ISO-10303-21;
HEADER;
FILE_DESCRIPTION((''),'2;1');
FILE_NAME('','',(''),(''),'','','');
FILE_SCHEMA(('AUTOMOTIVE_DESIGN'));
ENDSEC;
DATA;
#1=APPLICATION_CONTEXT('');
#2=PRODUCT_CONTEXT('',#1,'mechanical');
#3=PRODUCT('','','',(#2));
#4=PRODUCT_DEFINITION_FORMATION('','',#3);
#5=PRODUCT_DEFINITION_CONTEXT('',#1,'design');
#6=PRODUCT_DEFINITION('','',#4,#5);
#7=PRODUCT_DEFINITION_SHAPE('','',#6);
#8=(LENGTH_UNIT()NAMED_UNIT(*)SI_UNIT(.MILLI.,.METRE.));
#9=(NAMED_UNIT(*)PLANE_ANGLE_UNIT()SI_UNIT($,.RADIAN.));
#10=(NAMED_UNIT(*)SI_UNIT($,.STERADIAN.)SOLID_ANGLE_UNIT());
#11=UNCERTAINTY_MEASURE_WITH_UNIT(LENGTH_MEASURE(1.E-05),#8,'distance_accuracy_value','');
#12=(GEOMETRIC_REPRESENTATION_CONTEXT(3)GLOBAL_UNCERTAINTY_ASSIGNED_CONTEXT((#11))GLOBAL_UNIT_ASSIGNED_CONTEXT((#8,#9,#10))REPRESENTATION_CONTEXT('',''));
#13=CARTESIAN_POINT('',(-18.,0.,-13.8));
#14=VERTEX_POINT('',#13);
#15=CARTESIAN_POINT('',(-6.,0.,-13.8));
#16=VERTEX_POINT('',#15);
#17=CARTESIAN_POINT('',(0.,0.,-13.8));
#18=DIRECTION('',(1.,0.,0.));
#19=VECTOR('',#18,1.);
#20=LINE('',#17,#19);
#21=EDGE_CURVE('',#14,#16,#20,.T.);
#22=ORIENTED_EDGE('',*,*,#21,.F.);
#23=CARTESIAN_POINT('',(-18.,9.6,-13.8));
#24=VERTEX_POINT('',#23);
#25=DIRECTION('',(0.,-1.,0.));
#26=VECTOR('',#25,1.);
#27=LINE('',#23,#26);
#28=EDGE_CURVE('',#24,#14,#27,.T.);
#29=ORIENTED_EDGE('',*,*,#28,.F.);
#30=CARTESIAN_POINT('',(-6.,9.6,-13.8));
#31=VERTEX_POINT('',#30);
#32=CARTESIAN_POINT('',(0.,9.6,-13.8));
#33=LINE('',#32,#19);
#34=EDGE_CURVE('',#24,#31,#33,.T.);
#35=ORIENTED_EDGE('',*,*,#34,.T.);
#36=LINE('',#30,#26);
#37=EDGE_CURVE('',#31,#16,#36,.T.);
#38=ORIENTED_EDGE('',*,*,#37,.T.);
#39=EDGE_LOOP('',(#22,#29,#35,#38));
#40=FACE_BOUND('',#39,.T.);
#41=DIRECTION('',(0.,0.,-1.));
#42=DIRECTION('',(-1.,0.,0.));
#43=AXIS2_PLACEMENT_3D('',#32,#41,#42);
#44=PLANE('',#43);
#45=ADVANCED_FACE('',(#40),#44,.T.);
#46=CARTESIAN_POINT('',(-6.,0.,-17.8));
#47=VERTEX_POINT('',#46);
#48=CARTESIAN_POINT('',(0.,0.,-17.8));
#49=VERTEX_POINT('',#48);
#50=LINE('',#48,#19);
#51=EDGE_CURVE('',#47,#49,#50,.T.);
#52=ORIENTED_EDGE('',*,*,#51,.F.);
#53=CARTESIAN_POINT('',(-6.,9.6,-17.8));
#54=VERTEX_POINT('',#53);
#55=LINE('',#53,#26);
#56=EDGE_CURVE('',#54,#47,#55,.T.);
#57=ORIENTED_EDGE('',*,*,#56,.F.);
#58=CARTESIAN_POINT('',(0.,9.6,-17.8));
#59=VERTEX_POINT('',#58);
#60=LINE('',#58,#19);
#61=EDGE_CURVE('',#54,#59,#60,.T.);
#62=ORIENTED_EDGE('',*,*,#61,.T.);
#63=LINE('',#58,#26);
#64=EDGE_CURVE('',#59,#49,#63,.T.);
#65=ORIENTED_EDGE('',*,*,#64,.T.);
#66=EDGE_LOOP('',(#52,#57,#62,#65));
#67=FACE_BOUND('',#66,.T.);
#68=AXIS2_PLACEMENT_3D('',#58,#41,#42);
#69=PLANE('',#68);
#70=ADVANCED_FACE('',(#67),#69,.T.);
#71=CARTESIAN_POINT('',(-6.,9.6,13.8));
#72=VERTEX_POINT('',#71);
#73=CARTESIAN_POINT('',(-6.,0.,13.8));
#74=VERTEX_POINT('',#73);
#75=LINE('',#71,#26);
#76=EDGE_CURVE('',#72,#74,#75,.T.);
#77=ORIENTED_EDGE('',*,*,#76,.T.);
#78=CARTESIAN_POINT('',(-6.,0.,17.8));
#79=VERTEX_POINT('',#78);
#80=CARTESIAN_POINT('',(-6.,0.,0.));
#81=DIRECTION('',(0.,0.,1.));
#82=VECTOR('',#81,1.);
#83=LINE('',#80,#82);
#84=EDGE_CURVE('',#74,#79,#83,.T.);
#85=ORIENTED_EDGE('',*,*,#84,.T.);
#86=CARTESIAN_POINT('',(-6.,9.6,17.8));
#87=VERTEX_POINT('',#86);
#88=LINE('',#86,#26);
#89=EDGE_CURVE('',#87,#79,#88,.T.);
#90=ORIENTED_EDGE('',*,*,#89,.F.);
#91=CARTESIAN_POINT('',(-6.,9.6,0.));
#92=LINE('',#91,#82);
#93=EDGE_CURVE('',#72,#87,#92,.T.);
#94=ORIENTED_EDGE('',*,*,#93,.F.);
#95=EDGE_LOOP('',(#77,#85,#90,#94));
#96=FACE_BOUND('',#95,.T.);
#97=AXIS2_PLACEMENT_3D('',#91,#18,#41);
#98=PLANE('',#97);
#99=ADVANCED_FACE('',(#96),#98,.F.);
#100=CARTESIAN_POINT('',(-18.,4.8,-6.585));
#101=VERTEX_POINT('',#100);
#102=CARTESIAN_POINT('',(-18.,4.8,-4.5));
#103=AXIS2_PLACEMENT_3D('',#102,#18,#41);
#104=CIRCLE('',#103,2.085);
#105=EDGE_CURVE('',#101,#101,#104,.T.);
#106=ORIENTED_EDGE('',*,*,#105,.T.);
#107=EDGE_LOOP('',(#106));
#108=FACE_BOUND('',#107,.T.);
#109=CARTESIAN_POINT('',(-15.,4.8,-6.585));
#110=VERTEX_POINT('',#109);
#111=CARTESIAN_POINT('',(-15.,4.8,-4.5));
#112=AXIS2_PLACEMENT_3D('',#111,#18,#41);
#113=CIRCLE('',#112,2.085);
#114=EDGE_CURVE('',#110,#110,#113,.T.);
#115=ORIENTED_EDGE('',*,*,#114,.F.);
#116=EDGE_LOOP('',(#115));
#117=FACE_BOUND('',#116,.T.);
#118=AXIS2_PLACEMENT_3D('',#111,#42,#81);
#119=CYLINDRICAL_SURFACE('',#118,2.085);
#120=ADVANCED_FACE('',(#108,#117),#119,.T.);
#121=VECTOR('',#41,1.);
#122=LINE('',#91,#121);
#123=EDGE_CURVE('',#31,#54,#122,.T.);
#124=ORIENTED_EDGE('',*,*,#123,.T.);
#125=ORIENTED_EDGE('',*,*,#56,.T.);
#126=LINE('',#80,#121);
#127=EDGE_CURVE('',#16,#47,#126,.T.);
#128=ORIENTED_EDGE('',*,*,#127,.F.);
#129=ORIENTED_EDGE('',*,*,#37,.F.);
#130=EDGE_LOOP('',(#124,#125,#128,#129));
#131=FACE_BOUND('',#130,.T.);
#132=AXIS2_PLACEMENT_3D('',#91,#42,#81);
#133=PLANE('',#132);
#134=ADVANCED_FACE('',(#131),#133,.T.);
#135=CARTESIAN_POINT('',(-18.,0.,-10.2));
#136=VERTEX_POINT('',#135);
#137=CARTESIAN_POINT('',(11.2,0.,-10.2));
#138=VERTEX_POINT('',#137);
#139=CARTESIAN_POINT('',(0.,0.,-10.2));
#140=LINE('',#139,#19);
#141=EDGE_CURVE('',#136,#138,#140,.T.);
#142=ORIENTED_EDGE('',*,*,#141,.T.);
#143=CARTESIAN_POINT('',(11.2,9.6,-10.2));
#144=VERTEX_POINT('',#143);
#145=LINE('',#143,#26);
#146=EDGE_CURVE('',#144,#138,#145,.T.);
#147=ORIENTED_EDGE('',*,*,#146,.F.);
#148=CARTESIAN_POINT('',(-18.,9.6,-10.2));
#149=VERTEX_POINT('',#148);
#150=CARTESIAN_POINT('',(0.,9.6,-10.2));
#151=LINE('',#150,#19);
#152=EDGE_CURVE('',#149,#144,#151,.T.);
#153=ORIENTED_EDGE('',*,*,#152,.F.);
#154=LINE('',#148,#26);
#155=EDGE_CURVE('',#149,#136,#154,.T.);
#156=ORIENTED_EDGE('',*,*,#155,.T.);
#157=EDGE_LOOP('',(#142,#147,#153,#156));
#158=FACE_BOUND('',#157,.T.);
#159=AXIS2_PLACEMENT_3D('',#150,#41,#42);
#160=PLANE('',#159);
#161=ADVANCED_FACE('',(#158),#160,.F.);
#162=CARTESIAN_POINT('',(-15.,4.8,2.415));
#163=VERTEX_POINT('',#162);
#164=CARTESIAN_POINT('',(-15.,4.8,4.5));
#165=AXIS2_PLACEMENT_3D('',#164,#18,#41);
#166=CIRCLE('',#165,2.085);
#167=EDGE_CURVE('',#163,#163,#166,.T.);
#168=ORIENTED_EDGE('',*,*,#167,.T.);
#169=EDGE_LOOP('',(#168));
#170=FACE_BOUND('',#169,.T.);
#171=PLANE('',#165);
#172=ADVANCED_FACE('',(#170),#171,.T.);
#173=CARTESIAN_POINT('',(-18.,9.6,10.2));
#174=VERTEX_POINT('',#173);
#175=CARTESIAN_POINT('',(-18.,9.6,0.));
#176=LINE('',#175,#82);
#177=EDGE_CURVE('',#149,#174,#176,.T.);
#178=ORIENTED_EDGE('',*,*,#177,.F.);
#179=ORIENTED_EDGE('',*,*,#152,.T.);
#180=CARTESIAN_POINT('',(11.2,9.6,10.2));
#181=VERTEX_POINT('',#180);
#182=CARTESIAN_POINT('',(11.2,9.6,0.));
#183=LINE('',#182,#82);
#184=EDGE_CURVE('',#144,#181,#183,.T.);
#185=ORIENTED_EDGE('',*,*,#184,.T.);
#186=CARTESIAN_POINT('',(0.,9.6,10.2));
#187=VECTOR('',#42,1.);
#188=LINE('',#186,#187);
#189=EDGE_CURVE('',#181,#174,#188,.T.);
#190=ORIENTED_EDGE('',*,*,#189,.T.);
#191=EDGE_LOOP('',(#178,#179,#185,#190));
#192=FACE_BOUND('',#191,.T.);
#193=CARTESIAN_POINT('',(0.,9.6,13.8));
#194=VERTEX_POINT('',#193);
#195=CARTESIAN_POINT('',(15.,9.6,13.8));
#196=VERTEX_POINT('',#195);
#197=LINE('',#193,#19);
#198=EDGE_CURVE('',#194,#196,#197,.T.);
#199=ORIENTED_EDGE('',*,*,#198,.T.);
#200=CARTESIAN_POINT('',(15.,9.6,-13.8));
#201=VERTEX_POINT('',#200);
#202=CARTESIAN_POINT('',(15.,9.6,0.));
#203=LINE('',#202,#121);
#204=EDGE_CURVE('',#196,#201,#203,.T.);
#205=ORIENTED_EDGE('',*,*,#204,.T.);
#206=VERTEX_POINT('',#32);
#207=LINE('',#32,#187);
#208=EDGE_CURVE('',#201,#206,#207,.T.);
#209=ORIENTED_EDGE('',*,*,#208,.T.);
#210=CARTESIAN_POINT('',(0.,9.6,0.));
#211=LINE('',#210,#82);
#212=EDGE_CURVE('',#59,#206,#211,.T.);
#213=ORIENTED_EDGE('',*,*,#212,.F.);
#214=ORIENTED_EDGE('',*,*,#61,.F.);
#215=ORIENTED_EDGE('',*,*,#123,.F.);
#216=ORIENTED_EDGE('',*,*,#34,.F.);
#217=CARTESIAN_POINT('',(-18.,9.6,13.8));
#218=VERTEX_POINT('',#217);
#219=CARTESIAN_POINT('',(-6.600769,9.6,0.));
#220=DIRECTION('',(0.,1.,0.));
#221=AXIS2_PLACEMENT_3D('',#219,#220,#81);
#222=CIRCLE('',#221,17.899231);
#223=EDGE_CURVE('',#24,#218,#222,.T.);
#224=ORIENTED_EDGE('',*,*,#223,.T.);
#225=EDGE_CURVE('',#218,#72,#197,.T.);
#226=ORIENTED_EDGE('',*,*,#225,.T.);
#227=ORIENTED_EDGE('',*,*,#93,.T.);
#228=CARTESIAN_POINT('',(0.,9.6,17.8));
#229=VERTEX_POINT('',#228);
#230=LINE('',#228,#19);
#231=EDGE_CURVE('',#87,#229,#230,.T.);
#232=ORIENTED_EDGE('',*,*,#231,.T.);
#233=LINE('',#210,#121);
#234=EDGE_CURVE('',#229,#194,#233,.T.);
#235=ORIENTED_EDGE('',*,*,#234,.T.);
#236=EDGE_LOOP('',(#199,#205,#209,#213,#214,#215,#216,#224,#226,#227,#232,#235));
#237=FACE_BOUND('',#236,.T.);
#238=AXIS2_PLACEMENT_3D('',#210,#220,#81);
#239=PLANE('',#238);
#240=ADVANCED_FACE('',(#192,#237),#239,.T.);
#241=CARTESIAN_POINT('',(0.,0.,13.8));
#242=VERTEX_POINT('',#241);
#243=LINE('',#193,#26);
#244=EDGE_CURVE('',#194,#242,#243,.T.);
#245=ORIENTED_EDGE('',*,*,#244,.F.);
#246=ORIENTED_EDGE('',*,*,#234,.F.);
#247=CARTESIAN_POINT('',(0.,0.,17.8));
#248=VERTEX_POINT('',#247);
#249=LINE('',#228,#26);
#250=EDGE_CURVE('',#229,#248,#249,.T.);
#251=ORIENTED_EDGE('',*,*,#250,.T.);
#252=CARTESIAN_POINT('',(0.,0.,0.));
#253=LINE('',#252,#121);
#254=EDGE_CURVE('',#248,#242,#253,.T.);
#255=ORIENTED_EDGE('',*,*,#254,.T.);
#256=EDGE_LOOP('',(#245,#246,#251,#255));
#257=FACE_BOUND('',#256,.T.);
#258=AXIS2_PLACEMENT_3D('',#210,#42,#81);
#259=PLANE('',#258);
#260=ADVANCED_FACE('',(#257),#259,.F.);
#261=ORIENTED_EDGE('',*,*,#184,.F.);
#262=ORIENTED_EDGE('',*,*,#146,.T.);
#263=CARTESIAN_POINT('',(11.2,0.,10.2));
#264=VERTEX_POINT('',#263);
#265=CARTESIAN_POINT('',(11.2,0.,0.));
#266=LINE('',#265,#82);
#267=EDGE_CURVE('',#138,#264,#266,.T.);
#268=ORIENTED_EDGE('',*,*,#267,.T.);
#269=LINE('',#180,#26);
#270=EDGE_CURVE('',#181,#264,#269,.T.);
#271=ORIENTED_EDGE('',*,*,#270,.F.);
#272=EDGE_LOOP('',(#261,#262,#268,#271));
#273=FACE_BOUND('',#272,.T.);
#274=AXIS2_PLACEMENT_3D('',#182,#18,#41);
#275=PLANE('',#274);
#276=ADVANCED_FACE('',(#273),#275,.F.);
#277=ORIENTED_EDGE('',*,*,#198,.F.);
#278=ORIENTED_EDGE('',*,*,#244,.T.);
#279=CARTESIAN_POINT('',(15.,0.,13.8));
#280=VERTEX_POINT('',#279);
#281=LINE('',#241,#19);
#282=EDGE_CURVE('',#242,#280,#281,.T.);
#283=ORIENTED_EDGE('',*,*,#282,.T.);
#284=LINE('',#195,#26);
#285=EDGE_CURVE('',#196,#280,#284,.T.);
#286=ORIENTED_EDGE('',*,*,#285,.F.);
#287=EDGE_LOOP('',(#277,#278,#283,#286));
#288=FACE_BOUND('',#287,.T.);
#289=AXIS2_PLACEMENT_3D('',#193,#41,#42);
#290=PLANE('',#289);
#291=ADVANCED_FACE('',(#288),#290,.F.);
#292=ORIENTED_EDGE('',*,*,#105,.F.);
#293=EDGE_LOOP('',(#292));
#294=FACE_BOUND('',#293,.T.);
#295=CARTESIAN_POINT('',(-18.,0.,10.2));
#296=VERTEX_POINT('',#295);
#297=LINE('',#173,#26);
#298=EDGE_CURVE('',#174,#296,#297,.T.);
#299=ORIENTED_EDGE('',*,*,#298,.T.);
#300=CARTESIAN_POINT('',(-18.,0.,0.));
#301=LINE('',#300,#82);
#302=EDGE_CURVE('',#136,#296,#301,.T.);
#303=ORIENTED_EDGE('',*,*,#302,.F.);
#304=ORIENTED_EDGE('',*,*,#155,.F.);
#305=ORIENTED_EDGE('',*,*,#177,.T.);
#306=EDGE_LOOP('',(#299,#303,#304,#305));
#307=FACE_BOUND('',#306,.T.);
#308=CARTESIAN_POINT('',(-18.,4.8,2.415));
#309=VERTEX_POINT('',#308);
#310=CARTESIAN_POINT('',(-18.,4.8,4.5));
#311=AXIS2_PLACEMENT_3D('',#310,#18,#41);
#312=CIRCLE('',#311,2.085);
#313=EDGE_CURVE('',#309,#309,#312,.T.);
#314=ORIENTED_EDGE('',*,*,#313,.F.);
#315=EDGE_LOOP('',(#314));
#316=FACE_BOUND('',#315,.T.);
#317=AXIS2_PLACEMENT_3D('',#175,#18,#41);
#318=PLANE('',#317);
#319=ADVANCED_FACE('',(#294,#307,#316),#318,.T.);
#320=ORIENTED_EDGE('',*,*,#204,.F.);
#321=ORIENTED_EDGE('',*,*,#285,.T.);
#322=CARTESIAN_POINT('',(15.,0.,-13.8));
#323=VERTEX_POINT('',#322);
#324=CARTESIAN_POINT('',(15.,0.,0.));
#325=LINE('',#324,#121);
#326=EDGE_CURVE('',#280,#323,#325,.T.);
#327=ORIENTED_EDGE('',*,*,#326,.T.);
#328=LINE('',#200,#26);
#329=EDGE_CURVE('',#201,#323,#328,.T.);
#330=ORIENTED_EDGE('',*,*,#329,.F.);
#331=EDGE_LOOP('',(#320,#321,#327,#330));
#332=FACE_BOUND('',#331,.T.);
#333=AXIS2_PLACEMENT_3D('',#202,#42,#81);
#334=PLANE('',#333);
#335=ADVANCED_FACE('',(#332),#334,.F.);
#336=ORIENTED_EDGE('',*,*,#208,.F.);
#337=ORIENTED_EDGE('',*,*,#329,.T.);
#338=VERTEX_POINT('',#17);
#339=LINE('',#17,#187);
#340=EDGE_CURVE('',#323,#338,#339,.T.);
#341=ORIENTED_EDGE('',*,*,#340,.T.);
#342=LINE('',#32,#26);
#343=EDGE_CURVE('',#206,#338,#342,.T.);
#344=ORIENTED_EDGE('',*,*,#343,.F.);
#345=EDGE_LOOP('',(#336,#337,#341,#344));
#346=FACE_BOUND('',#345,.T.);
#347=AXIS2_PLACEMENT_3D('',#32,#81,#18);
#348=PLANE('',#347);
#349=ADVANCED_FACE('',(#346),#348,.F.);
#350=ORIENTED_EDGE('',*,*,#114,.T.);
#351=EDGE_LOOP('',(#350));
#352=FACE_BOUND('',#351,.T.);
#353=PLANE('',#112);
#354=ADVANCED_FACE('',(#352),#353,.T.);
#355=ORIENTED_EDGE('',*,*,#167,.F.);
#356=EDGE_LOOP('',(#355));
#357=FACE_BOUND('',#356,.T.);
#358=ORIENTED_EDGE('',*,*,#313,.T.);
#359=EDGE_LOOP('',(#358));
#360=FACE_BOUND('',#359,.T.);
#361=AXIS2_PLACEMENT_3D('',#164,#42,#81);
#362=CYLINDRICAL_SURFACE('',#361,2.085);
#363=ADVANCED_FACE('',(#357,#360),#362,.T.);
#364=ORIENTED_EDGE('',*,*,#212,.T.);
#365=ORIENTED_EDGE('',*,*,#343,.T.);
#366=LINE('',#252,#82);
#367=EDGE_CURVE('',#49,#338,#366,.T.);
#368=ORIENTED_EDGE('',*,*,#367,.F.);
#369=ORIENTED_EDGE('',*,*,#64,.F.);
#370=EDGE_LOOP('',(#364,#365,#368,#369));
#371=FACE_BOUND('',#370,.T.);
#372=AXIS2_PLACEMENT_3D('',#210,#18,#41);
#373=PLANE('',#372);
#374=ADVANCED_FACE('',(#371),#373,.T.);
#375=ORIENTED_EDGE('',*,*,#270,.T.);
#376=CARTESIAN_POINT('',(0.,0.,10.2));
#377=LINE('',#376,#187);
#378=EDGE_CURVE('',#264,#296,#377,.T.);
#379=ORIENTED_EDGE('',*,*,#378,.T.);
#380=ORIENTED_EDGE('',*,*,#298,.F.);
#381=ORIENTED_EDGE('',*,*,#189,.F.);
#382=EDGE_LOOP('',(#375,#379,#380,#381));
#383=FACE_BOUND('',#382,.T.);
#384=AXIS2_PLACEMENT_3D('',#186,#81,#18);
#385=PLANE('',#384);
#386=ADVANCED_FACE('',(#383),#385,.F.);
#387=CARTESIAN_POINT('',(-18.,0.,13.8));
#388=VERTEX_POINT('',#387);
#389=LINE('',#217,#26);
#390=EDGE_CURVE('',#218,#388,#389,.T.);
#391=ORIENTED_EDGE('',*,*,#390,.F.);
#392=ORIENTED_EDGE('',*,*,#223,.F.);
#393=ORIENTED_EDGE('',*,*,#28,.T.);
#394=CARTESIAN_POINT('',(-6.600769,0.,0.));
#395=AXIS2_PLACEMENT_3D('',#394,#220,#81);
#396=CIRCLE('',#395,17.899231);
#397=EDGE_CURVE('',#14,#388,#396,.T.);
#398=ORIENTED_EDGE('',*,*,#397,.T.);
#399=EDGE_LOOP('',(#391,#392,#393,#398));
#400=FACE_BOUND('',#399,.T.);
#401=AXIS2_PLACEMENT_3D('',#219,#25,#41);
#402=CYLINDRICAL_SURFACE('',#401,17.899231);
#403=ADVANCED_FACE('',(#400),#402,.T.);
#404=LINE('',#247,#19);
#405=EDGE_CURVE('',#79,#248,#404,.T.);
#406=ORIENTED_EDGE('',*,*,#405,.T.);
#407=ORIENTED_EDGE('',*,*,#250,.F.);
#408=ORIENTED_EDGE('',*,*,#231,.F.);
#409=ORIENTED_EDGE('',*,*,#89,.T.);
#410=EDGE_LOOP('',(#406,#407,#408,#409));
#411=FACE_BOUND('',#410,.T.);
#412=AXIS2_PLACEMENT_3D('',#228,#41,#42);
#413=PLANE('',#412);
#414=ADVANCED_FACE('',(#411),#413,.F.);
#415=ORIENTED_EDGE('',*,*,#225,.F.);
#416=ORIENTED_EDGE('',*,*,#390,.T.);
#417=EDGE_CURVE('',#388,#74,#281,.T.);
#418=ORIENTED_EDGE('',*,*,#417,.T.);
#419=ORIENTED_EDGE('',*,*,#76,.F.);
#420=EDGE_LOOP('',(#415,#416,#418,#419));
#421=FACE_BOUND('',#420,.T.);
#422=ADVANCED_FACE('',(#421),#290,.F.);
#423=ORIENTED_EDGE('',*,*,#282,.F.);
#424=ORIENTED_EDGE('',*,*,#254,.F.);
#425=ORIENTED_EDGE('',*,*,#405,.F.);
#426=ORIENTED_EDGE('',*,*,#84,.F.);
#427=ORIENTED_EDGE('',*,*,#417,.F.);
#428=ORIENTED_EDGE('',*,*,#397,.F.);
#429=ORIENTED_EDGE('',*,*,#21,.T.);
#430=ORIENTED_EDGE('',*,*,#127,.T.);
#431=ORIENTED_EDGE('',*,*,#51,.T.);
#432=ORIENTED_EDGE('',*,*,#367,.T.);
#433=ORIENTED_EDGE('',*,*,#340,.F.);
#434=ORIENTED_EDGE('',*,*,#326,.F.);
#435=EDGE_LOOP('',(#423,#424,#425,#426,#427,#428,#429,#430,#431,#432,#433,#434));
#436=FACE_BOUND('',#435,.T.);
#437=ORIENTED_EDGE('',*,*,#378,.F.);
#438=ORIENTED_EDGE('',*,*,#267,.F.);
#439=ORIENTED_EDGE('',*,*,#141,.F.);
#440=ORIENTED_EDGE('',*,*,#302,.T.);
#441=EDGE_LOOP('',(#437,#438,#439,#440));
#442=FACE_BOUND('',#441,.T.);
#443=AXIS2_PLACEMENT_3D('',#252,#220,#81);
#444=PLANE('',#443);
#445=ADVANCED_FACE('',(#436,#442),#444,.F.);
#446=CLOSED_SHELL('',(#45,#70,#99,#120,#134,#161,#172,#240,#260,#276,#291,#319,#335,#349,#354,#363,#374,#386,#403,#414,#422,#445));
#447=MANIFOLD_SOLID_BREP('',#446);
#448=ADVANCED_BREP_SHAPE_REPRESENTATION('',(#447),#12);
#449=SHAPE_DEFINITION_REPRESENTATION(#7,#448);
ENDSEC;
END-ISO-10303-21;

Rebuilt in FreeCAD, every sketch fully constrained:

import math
import FreeCAD as App
import Part
import Sketcher
from FreeCAD import Vector


def add_polygon(sketch, points):
    """Adds a closed chain of lines whose ends are joined by coincident constraints."""
    first, n = sketch.GeometryCount, len(points)
    for a, b in zip(points, points[1:] + points[:1]):
        sketch.addGeometry(Part.LineSegment(App.Vector(*a, 0), App.Vector(*b, 0)), False)
    for i in range(n):
        sketch.addConstraint(Sketcher.Constraint("Coincident", first + i, 2, first + (i + 1) % n, 1))

doc = App.newDocument("Part")
body = doc.addObject("PartDesign::Body", "Body")

sketch1 = body.newObject("Sketcher::SketchObject", "Sketch")
sketch1.AttachmentSupport = (doc.getObject("XZ_Plane"), [""])
sketch1.MapMode = "FlatFace"
sketch1.addGeometry(Part.LineSegment(Vector(-6, -13.8, 0), Vector(-18, -13.8, 0)), False)
sketch1.addGeometry(Part.ArcOfCircle(Part.Circle(Vector(-6.6, 0, 0), Vector(0, 0, 1), 17.9), math.radians(130), math.radians(230)), False)
sketch1.addGeometry(Part.LineSegment(Vector(-18, 13.8, 0), Vector(-6, 13.8, 0)), False)
sketch1.addGeometry(Part.LineSegment(Vector(-6, 13.8, 0), Vector(-6, 17.8, 0)), False)
sketch1.addGeometry(Part.LineSegment(Vector(-6, 17.8, 0), Vector(0, 17.8, 0)), False)
sketch1.addGeometry(Part.LineSegment(Vector(0, 17.8, 0), Vector(0, 13.8, 0)), False)
sketch1.addGeometry(Part.LineSegment(Vector(0, 13.8, 0), Vector(15, 13.8, 0)), False)
sketch1.addGeometry(Part.LineSegment(Vector(15, 13.8, 0), Vector(15, -13.8, 0)), False)
sketch1.addGeometry(Part.LineSegment(Vector(15, -13.8, 0), Vector(0, -13.8, 0)), False)
sketch1.addGeometry(Part.LineSegment(Vector(0, -13.8, 0), Vector(0, -17.8, 0)), False)
sketch1.addGeometry(Part.LineSegment(Vector(0, -17.8, 0), Vector(-6, -17.8, 0)), False)
sketch1.addGeometry(Part.LineSegment(Vector(-6, -17.8, 0), Vector(-6, -13.8, 0)), False)
add_polygon(sketch1, [(11.2, 10.2), (-18, 10.2), (-18, -10.2), (11.2, -10.2)])
sketch1.addConstraint(Sketcher.Constraint("Coincident", 0, 2, 1, 2))
sketch1.addConstraint(Sketcher.Constraint("Coincident", 1, 1, 2, 1))
sketch1.addConstraint(Sketcher.Constraint("Coincident", 2, 2, 3, 1))
sketch1.addConstraint(Sketcher.Constraint("Coincident", 3, 2, 4, 1))
sketch1.addConstraint(Sketcher.Constraint("Coincident", 4, 2, 5, 1))
sketch1.addConstraint(Sketcher.Constraint("Coincident", 5, 2, 6, 1))
sketch1.addConstraint(Sketcher.Constraint("Coincident", 6, 2, 7, 1))
sketch1.addConstraint(Sketcher.Constraint("Coincident", 7, 2, 8, 1))
sketch1.addConstraint(Sketcher.Constraint("Coincident", 8, 2, 9, 1))
sketch1.addConstraint(Sketcher.Constraint("Coincident", 9, 2, 10, 1))
sketch1.addConstraint(Sketcher.Constraint("Coincident", 10, 2, 11, 1))
sketch1.addConstraint(Sketcher.Constraint("Coincident", 11, 2, 0, 1))
sketch1.addConstraint(Sketcher.Constraint("Horizontal", 0))
sketch1.addConstraint(Sketcher.Constraint("Horizontal", 2))
sketch1.addConstraint(Sketcher.Constraint("Vertical", 3))
sketch1.addConstraint(Sketcher.Constraint("Horizontal", 4))
sketch1.addConstraint(Sketcher.Constraint("Vertical", 5))
sketch1.addConstraint(Sketcher.Constraint("Horizontal", 6))
sketch1.addConstraint(Sketcher.Constraint("Vertical", 7))
sketch1.addConstraint(Sketcher.Constraint("Horizontal", 8))
sketch1.addConstraint(Sketcher.Constraint("Vertical", 9))
sketch1.addConstraint(Sketcher.Constraint("Horizontal", 10))
sketch1.addConstraint(Sketcher.Constraint("Vertical", 11))
sketch1.addConstraint(Sketcher.Constraint("Horizontal", 12))
sketch1.addConstraint(Sketcher.Constraint("Vertical", 13))
sketch1.addConstraint(Sketcher.Constraint("Horizontal", 14))
sketch1.addConstraint(Sketcher.Constraint("Vertical", 15))
sketch1.addConstraint(Sketcher.Constraint("Symmetric", 5, 2, 8, 2, -1, 1))
sketch1.addConstraint(Sketcher.Constraint("Symmetric", 0, 2, 1, 1, -1))
sketch1.addConstraint(Sketcher.Constraint("Symmetric", 4, 2, 9, 2, -1))
sketch1.addConstraint(Sketcher.Constraint("Horizontal", 2, 2, 5, 2))
sketch1.addConstraint(Sketcher.Constraint("Vertical", 3, 2, 10, 2))
sketch1.addConstraint(Sketcher.Constraint("Vertical", 1, 1, 12, 2))
sketch1.addConstraint(Sketcher.Constraint("DistanceX", 0, 2, 0, 1, 12.0))
sketch1.addConstraint(Sketcher.Constraint("DistanceX", 4, 1, 4, 2, 6.0))
sketch1.addConstraint(Sketcher.Constraint("DistanceX", 6, 1, 6, 2, 15.0))
sketch1.addConstraint(Sketcher.Constraint("DistanceY", 3, 1, 3, 2, 4.0))
sketch1.addConstraint(Sketcher.Constraint("DistanceX", 12, 2, 12, 1, 29.2))
sketch1.addConstraint(Sketcher.Constraint("DistanceY", 7, 2, 7, 1, 27.6))
sketch1.addConstraint(Sketcher.Constraint("DistanceY", 13, 2, 13, 1, 20.4))
sketch1.addConstraint(Sketcher.Constraint("DistanceY", -1, 1, 12, 2, 10.2))
sketch1.addConstraint(Sketcher.Constraint("Radius", 1, 17.899231))
pad1 = body.newObject("PartDesign::Pad", "Pad")
pad1.Profile = sketch1
pad1.Length = 9.6
pad1.Reversed = True

sketch2 = body.newObject("Sketcher::SketchObject", "Sketch001")
sketch2.AttachmentSupport = (doc.getObject("YZ_Plane"), [""])
sketch2.MapMode = "FlatFace"
sketch2.AttachmentOffset = App.Placement(Vector(0, 0, -18), App.Rotation())
sketch2.addGeometry(Part.Circle(Vector(4.8, 4.5, 0), Vector(0, 0, 1), 2.1), False)
sketch2.addGeometry(Part.Circle(Vector(4.8, -4.5, 0), Vector(0, 0, 1), 2.1), False)
sketch2.addConstraint(Sketcher.Constraint("Equal", 0, 1))
sketch2.addConstraint(Sketcher.Constraint("Symmetric", 0, 3, 1, 3, -1))
sketch2.addConstraint(Sketcher.Constraint("Diameter", 0, 4.17))
sketch2.addConstraint(Sketcher.Constraint("DistanceY", 1, 3, 0, 3, 9.0))
sketch2.addConstraint(Sketcher.Constraint("DistanceX", -1, 1, 0, 3, 4.8))
pad2 = body.newObject("PartDesign::Pad", "Pad001")
pad2.Profile = sketch2
pad2.Length = 3

doc.recompute()
